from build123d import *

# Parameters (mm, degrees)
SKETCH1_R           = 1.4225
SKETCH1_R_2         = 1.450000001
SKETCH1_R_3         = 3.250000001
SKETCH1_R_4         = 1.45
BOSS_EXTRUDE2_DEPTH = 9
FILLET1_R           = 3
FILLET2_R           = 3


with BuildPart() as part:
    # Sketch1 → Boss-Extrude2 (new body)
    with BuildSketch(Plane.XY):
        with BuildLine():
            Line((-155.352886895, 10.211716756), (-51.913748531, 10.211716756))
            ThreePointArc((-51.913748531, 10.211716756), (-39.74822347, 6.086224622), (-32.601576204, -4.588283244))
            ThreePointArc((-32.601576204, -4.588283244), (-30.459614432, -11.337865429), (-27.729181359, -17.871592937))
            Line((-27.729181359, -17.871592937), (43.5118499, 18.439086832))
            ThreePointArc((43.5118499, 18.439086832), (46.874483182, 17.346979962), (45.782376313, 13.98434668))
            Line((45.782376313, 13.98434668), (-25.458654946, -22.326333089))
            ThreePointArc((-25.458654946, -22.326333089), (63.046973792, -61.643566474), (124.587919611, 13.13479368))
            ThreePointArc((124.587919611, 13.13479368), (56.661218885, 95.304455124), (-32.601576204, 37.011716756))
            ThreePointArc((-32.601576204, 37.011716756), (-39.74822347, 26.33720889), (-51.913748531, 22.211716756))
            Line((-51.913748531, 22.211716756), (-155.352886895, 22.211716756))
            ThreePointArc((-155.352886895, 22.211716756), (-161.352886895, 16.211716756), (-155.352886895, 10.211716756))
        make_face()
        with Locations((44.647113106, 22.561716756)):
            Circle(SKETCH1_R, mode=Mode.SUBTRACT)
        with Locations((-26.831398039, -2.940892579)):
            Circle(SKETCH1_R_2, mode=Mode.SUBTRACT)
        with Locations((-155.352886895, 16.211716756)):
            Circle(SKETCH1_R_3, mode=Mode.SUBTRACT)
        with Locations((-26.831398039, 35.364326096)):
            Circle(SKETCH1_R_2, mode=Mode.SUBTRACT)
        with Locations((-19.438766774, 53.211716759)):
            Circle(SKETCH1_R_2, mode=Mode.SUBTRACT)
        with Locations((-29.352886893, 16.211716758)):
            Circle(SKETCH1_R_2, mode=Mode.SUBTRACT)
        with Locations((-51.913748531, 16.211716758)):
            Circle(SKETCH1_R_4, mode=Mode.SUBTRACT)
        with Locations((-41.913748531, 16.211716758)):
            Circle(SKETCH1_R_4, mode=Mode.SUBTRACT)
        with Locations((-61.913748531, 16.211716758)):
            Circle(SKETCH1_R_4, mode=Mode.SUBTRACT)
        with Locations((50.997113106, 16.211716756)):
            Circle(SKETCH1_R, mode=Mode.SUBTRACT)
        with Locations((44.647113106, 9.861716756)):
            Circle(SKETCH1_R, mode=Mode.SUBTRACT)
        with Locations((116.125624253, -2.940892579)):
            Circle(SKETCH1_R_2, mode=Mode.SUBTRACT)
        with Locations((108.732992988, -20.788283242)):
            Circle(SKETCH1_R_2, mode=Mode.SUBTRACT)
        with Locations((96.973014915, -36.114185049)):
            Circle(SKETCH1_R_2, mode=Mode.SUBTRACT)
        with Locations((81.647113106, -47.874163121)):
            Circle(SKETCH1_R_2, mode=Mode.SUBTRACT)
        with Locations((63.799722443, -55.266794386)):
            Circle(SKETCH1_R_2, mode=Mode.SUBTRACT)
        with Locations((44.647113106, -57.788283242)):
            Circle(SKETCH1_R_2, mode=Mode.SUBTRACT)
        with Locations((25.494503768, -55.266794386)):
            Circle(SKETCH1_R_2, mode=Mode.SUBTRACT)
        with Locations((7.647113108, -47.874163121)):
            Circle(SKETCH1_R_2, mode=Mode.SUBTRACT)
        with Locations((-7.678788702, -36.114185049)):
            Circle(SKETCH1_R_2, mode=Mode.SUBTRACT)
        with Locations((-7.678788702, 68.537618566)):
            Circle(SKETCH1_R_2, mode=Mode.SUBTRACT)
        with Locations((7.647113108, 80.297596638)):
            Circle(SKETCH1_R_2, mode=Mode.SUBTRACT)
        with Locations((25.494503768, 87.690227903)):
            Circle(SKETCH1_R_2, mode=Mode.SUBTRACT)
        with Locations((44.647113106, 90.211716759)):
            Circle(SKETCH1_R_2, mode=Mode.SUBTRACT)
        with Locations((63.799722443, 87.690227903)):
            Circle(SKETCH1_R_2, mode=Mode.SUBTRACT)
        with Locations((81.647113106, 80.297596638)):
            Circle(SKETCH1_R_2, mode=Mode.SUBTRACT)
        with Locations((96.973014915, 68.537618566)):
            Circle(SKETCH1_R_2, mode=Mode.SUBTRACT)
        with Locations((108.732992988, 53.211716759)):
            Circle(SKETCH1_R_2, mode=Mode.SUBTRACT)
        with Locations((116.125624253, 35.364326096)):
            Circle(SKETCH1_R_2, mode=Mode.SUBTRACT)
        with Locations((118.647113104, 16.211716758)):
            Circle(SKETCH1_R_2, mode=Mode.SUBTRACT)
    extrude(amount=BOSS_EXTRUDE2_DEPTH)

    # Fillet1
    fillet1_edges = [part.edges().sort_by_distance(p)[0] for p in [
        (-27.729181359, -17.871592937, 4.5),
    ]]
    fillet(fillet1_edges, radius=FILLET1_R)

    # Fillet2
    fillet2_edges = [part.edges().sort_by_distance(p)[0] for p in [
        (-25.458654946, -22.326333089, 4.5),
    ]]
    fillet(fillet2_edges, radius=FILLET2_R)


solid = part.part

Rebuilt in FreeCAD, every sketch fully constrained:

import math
import FreeCAD as App
import Part
import Sketcher
Q = App.Units.Quantity


def edges_at(feature, points):
    """Names of the edges that pass closest to the given points."""
    edges = feature.Shape.Edges
    near = lambda p: min(range(len(edges)), key=lambda i: edges[i].distToShape(Part.Vertex(*p))[0])
    return sorted({f"Edge{near(p) + 1}" for p in points})

doc = App.newDocument("Part")
body = doc.addObject("PartDesign::Body", "Body")

# Sketch on XY plane
sketch1 = body.newObject("Sketcher::SketchObject", "Sketch")
sketch1.AttachmentSupport = (doc.getObject("XY_Plane"), [""])
sketch1.MapMode = "FlatFace"
sketch1.addGeometry([
    Part.LineSegment(App.Vector(-155.352887, 10.211717, 0), App.Vector(-51.913749, 10.211717, 0)),  # 0
    Part.ArcOfCircle(Part.Circle(App.Vector(-51.913749, -9.788283, 0), App.Vector(0, 0, 1), 20), math.radians(15.070062), math.radians(90)),  # 1
    Part.ArcOfCircle(Part.Circle(App.Vector(44.647113, 16.211717, 0), App.Vector(0, 0, 1), 80), math.radians(-164.929938), math.radians(-154.783403)),  # 2
    Part.LineSegment(App.Vector(-27.729181, -17.871593, 0), App.Vector(43.51185, 18.439087, 0)),  # 3
    Part.ArcOfCircle(Part.Circle(App.Vector(44.647113, 16.211717, 0), App.Vector(0, 0, 1), 2.5), math.radians(-62.992619), math.radians(117.007381)),  # 4
    Part.LineSegment(App.Vector(45.782376, 13.984347, 0), App.Vector(-25.458655, -22.326333, 0)),  # 5
    Part.ArcOfCircle(Part.Circle(App.Vector(44.647113, 16.211717, 0), App.Vector(0, 0, 1), 80), math.radians(-151.201834), math.radians(-2.204228)),  # 6
    Part.ArcOfCircle(Part.Circle(App.Vector(44.647113, 16.211717, 0), App.Vector(0, 0, 1), 80), math.radians(-2.204228), math.radians(164.929938)),  # 7
    Part.ArcOfCircle(Part.Circle(App.Vector(-51.913749, 42.211717, 0), App.Vector(0, 0, 1), 20), math.radians(-90), math.radians(-15.070062)),  # 8
    Part.LineSegment(App.Vector(-51.913749, 22.211717, 0), App.Vector(-155.352887, 22.211717, 0)),  # 9
    Part.ArcOfCircle(Part.Circle(App.Vector(-155.352887, 16.211717, 0), App.Vector(0, 0, 1), 6), math.radians(90), math.radians(270)),  # 10
    Part.Circle(App.Vector(-155.352887, 16.211717, 0), App.Vector(0, 0, 1), 3.25),  # 11
    Part.Circle(App.Vector(-26.831398, -2.940893, 0), App.Vector(0, 0, 1), 1.45),  # 12
    Part.Circle(App.Vector(-61.913749, 16.211717, 0), App.Vector(0, 0, 1), 1.45),  # 13
    Part.Circle(App.Vector(-51.913749, 16.211717, 0), App.Vector(0, 0, 1), 1.45),  # 14
    Part.Circle(App.Vector(-41.913749, 16.211717, 0), App.Vector(0, 0, 1), 1.45),  # 15
    Part.Circle(App.Vector(-29.352887, 16.211717, 0), App.Vector(0, 0, 1), 1.45),  # 16
    Part.Circle(App.Vector(7.647113, -47.874163, 0), App.Vector(0, 0, 1), 1.45),  # 17
    Part.Circle(App.Vector(25.494504, -55.266794, 0), App.Vector(0, 0, 1), 1.45),  # 18
    Part.Circle(App.Vector(44.647113, -57.788283, 0), App.Vector(0, 0, 1), 1.45),  # 19
    Part.Circle(App.Vector(-7.678789, -36.114185, 0), App.Vector(0, 0, 1), 1.45),  # 20
    Part.Circle(App.Vector(63.799722, -55.266794, 0), App.Vector(0, 0, 1), 1.45),  # 21
    Part.Circle(App.Vector(81.647113, -47.874163, 0), App.Vector(0, 0, 1), 1.45),  # 22
    Part.Circle(App.Vector(96.973015, -36.114185, 0), App.Vector(0, 0, 1), 1.45),  # 23
    Part.Circle(App.Vector(44.647113, 9.861717, 0), App.Vector(0, 0, 1), 1.4225),  # 24
    Part.Circle(App.Vector(108.732993, -20.788283, 0), App.Vector(0, 0, 1), 1.45),  # 25
    Part.Circle(App.Vector(116.125624, -2.940893, 0), App.Vector(0, 0, 1), 1.45),  # 26
    Part.Circle(App.Vector(50.997113, 16.211717, 0), App.Vector(0, 0, 1), 1.4225),  # 27
    Part.Circle(App.Vector(118.647113, 16.211717, 0), App.Vector(0, 0, 1), 1.45),  # 28
    Part.Circle(App.Vector(-26.831398, 35.364326, 0), App.Vector(0, 0, 1), 1.45),  # 29
    Part.Circle(App.Vector(-19.438767, 53.211717, 0), App.Vector(0, 0, 1), 1.45),  # 30
    Part.Circle(App.Vector(44.647113, 22.561717, 0), App.Vector(0, 0, 1), 1.4225),  # 31
    Part.Circle(App.Vector(116.125624, 35.364326, 0), App.Vector(0, 0, 1), 1.45),  # 32
    Part.Circle(App.Vector(108.732993, 53.211717, 0), App.Vector(0, 0, 1), 1.45),  # 33
    Part.Circle(App.Vector(-7.678789, 68.537619, 0), App.Vector(0, 0, 1), 1.45),  # 34
    Part.Circle(App.Vector(7.647113, 80.297597, 0), App.Vector(0, 0, 1), 1.45),  # 35
    Part.Circle(App.Vector(25.494504, 87.690228, 0), App.Vector(0, 0, 1), 1.45),  # 36
    Part.Circle(App.Vector(44.647113, 90.211717, 0), App.Vector(0, 0, 1), 1.45),  # 37
    Part.Circle(App.Vector(96.973015, 68.537619, 0), App.Vector(0, 0, 1), 1.45),  # 38
    Part.Circle(App.Vector(81.647113, 80.297597, 0), App.Vector(0, 0, 1), 1.45),  # 39
    Part.Circle(App.Vector(63.799722, 87.690228, 0), App.Vector(0, 0, 1), 1.45),  # 40
], False)
sketch1.addConstraint([
    Sketcher.Constraint("Coincident", 0, 2, 1, 2),
    Sketcher.Constraint("Coincident", 1, 1, 2, 1),
    Sketcher.Constraint("Coincident", 2, 2, 3, 1),
    Sketcher.Constraint("Coincident", 3, 2, 4, 2),
    Sketcher.Constraint("Coincident", 4, 1, 5, 1),
    Sketcher.Constraint("Coincident", 5, 2, 6, 1),
    Sketcher.Constraint("Coincident", 6, 2, 7, 1),
    Sketcher.Constraint("Coincident", 7, 2, 8, 2),
    Sketcher.Constraint("Coincident", 8, 1, 9, 1),
    Sketcher.Constraint("Coincident", 9, 2, 10, 1),
    Sketcher.Constraint("Coincident", 10, 2, 0, 1),
    Sketcher.Constraint("Horizontal", 0),
    Sketcher.Constraint("Horizontal", 9),
    Sketcher.Constraint("Coincident", 4, 3, 2, 3),
    Sketcher.Constraint("Coincident", 6, 3, 2, 3),
    Sketcher.Constraint("Coincident", 7, 3, 2, 3),
    Sketcher.Constraint("Coincident", 11, 3, 10, 3),
    Sketcher.Constraint("Radius", 1, Q("20 mm")),
    Sketcher.Constraint("Radius", 2, Q("80 mm")),
    Sketcher.Constraint("Radius", 6, Q("80 mm")),
    Sketcher.Constraint("Radius", 8, Q("20 mm")),
    Sketcher.Constraint("Radius", 10, Q("6 mm")),
    Sketcher.Constraint("Diameter", 11, Q("6.5 mm")),
    Sketcher.Constraint("Diameter", 12, Q("2.9 mm")),
    Sketcher.Constraint("Diameter", 13, Q("2.9 mm")),
    Sketcher.Constraint("Diameter", 14, Q("2.9 mm")),
    Sketcher.Constraint("Diameter", 15, Q("2.9 mm")),
    Sketcher.Constraint("Diameter", 16, Q("2.9 mm")),
    Sketcher.Constraint("Diameter", 17, Q("2.9 mm")),
    Sketcher.Constraint("Diameter", 18, Q("2.9 mm")),
    Sketcher.Constraint("Diameter", 19, Q("2.9 mm")),
    Sketcher.Constraint("Diameter", 20, Q("2.9 mm")),
    Sketcher.Constraint("Diameter", 21, Q("2.9 mm")),
    Sketcher.Constraint("Diameter", 22, Q("2.9 mm")),
    Sketcher.Constraint("Diameter", 23, Q("2.9 mm")),
    Sketcher.Constraint("Diameter", 25, Q("2.9 mm")),
    Sketcher.Constraint("Diameter", 26, Q("2.9 mm")),
    Sketcher.Constraint("Diameter", 28, Q("2.9 mm")),
    Sketcher.Constraint("Diameter", 29, Q("2.9 mm")),
    Sketcher.Constraint("Diameter", 30, Q("2.9 mm")),
    Sketcher.Constraint("Diameter", 32, Q("2.9 mm")),
    Sketcher.Constraint("Diameter", 33, Q("2.9 mm")),
    Sketcher.Constraint("Diameter", 34, Q("2.9 mm")),
    Sketcher.Constraint("Diameter", 35, Q("2.9 mm")),
    Sketcher.Constraint("Diameter", 36, Q("2.9 mm")),
    Sketcher.Constraint("Diameter", 37, Q("2.9 mm")),
    Sketcher.Constraint("Diameter", 38, Q("2.9 mm")),
    Sketcher.Constraint("Diameter", 39, Q("2.9 mm")),
    Sketcher.Constraint("Diameter", 40, Q("2.9 mm")),
    Sketcher.Constraint("Radius", 4, Q("2.5 mm")),
    Sketcher.Constraint("Diameter", 24, Q("2.845 mm")),
    Sketcher.Constraint("Diameter", 27, Q("2.845 mm")),
    Sketcher.Constraint("Diameter", 31, Q("2.845 mm")),
    Sketcher.Constraint("DistanceY", 1, 3, 2, 3, Q("26 mm")),
    Sketcher.Constraint("DistanceX", 10, 3, 4, 3, Q("200 mm")),
    Sketcher.Constraint("DistanceX", 13, 3, 8, 3, Q("10 mm")),
    Sketcher.Constraint("DistanceY", 13, 3, 8, 3, Q("26 mm")),
    Sketcher.Constraint("DistanceX", 13, 3, 14, 3, Q("10 mm")),
    Sketcher.Constraint("DistanceY", 14, 3, 8, 3, Q("26 mm")),
    Sketcher.Constraint("DistanceX", 14, 3, 15, 3, Q("10 mm")),
    Sketcher.Constraint("DistanceY", 15, 3, 8, 3, Q("26 mm")),
    Sketcher.Constraint("DistanceY", 16, 3, 8, 3, Q("26 mm")),
    Sketcher.Constraint("DistanceX", 17, 3, 4, 3, Q("37 mm")),
    Sketcher.Constraint("DistanceX", 17, 3, 19, 3, Q("37 mm")),
    Sketcher.Constraint("DistanceY", 19, 3, 4, 3, Q("74 mm")),
    Sketcher.Constraint("DistanceX", 19, 3, 22, 3, Q("37 mm")),
    Sketcher.Constraint("DistanceY", 25, 3, 2, 3, Q("37 mm")),
    Sketcher.Constraint("DistanceY", 25, 3, 28, 3, Q("37 mm")),
    Sketcher.Constraint("DistanceX", 2, 3, 28, 3, Q("74 mm")),
    Sketcher.Constraint("DistanceY", 8, 3, 30, 3, Q("11 mm")),
    Sketcher.Constraint("DistanceY", 28, 3, 33, 3, Q("37 mm")),
    Sketcher.Constraint("DistanceY", 27, 3, 33, 3, Q("37 mm")),
    Sketcher.Constraint("DistanceX", 35, 3, 31, 3, Q("37 mm")),
    Sketcher.Constraint("DistanceX", 35, 3, 37, 3, Q("37 mm")),
    Sketcher.Constraint("DistanceY", 2, 3, 37, 3, Q("74 mm")),
    Sketcher.Constraint("DistanceX", 37, 3, 39, 3, Q("37 mm")),
    Sketcher.Constraint("DistanceX", 13, 3, 0, 2, Q("10 mm")),
    Sketcher.Constraint("DistanceX", 13, 3, 8, 1, Q("10 mm")),
    Sketcher.Constraint("DistanceY", 1, 3, 1, 1, Q("5.2 mm")),
    Sketcher.Constraint("DistanceY", 7, 2, 8, 3, Q("5.2 mm")),
    Sketcher.Constraint("DistanceY", 24, 3, 4, 3, Q("6.35 mm")),
    Sketcher.Constraint("DistanceX", 2, 3, 27, 3, Q("6.35 mm")),
    Sketcher.Constraint("DistanceX", 24, 3, 27, 3, Q("6.35 mm")),
    Sketcher.Constraint("DistanceY", 2, 3, 31, 3, Q("6.35 mm")),
    Sketcher.Constraint("DistanceX", 31, 3, 27, 3, Q("6.35 mm")),
    Sketcher.Constraint("DistanceX", 0, 1, 0, 2, Q("103.439138 mm")),
    Sketcher.Constraint("DistanceX", 9, 2, 9, 1, Q("103.439138 mm")),
    Sketcher.Constraint("DistanceX", 12, 3, -1, 1, Q("26.831398 mm")),
    Sketcher.Constraint("DistanceX", 29, 3, -1, 1, Q("26.831398 mm")),
    Sketcher.Constraint("DistanceX", 12, 3, 18, 3, Q("52.325902 mm")),
    Sketcher.Constraint("DistanceY", 18, 3, 12, 3, Q("52.325902 mm")),
    Sketcher.Constraint("DistanceX", 20, 3, 17, 3, Q("15.325902 mm")),
    Sketcher.Constraint("DistanceY", 20, 3, 1, 3, Q("26.325902 mm")),
    Sketcher.Constraint("DistanceX", 16, 3, 20, 3, Q("21.674098 mm")),
    Sketcher.Constraint("DistanceX", 22, 3, 23, 3, Q("15.325902 mm")),
    Sketcher.Constraint("DistanceY", 19, 3, 23, 3, Q("21.674098 mm")),
    Sketcher.Constraint("DistanceY", 30, 3, 34, 3, Q("15.325902 mm")),
    Sketcher.Constraint("DistanceX", 16, 3, 34, 3, Q("21.674098 mm")),
    Sketcher.Constraint("DistanceY", 33, 3, 38, 3, Q("15.325902 mm")),
    Sketcher.Constraint("DistanceX", 38, 3, 28, 3, Q("21.674098 mm")),
    Sketcher.Constraint("DistanceY", 2, 2, 12, 3, Q("14.9307 mm")),
    Sketcher.Constraint("DistanceX", 1, 3, -1, 1, Q("51.913749 mm")),
    Sketcher.Constraint("DistanceY", -1, 1, 34, 3, Q("68.537619 mm")),
    Sketcher.Constraint("DistanceX", 2, 2, -1, 1, Q("27.729181 mm")),
    Sketcher.Constraint("DistanceX", -1, 1, 3, 2, Q("43.51185 mm")),
    Sketcher.Constraint("DistanceX", -1, 1, 6, 2, Q("124.58792 mm")),
    Sketcher.Constraint("DistanceY", 17, 3, 12, 3, Q("44.933271 mm")),
    Sketcher.Constraint("DistanceX", 19, 3, 21, 3, Q("19.152609 mm")),
    Sketcher.Constraint("DistanceY", 19, 3, 21, 3, Q("2.521489 mm")),
    Sketcher.Constraint("DistanceY", 21, 3, 22, 3, Q("7.392631 mm")),
    Sketcher.Constraint("DistanceX", 23, 3, 25, 3, Q("11.759978 mm")),
    Sketcher.Constraint("DistanceX", 25, 3, 26, 3, Q("7.392631 mm")),
    Sketcher.Constraint("DistanceY", 25, 3, 26, 3, Q("17.847391 mm")),
    Sketcher.Constraint("DistanceY", 16, 3, 29, 3, Q("19.152609 mm")),
    Sketcher.Constraint("DistanceX", 29, 3, 30, 3, Q("7.392631 mm")),
    Sketcher.Constraint("DistanceX", 32, 3, 28, 3, Q("2.521489 mm")),
    Sketcher.Constraint("DistanceY", 28, 3, 32, 3, Q("19.152609 mm")),
    Sketcher.Constraint("DistanceX", 33, 3, 32, 3, Q("7.392631 mm")),
    Sketcher.Constraint("DistanceY", 34, 3, 35, 3, Q("11.759978 mm")),
    Sketcher.Constraint("DistanceX", 35, 3, 36, 3, Q("17.847391 mm")),
    Sketcher.Constraint("DistanceY", 35, 3, 36, 3, Q("7.392631 mm")),
    Sketcher.Constraint("DistanceY", 38, 3, 39, 3, Q("11.759978 mm")),
    Sketcher.Constraint("DistanceX", 37, 3, 40, 3, Q("19.152609 mm")),
    Sketcher.Constraint("DistanceY", 40, 3, 37, 3, Q("2.521489 mm")),
    Sketcher.Constraint("DistanceY", 4, 1, 2, 3, Q("2.22737 mm")),
    Sketcher.Constraint("DistanceY", 5, 2, 2, 2, Q("4.45474 mm")),
])
pad1 = body.newObject("PartDesign::Pad", "Pad")
pad1.Profile = sketch1
pad1.Length = 9
doc.recompute()

fillet = body.newObject("PartDesign::Fillet", "Fillet")
fillet.Base = (pad1, edges_at(pad1, [(-27.729, -17.872, 4.5)]))
fillet.Radius = 3
doc.recompute()

fillet2 = body.newObject("PartDesign::Fillet", "Fillet001")
fillet2.Base = (fillet, edges_at(fillet, [(-25.459, -22.326, 4.5)]))
fillet2.Radius = 3

doc.recompute()
